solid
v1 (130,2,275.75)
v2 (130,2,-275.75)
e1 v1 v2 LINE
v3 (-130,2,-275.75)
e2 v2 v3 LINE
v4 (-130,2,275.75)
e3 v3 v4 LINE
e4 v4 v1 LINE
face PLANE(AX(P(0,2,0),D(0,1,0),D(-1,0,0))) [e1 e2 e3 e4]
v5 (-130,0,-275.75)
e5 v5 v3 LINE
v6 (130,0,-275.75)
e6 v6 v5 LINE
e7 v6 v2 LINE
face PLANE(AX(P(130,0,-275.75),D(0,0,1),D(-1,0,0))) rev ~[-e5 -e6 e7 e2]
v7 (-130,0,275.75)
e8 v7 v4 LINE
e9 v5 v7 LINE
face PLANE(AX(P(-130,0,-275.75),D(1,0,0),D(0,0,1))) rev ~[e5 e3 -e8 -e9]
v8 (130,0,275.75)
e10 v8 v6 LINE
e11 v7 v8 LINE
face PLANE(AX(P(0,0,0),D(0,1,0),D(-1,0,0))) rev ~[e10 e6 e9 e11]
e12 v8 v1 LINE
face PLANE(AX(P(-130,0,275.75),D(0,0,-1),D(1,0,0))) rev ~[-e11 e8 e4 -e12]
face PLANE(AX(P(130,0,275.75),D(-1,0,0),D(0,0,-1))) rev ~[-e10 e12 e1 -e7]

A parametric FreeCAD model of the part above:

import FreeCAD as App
import Part
import Sketcher
from FreeCAD import Vector


def add_polygon(sketch, points):
    """Adds a closed chain of lines whose ends are joined by coincident constraints."""
    first, n = sketch.GeometryCount, len(points)
    for a, b in zip(points, points[1:] + points[:1]):
        sketch.addGeometry(Part.LineSegment(App.Vector(*a, 0), App.Vector(*b, 0)), False)
    for i in range(n):
        sketch.addConstraint(Sketcher.Constraint("Coincident", first + i, 2, first + (i + 1) % n, 1))

doc = App.newDocument("Part")
body = doc.addObject("PartDesign::Body", "Body")

sketch1 = body.newObject("Sketcher::SketchObject", "Sketch")
sketch1.AttachmentSupport = (doc.getObject("XZ_Plane"), [""])
sketch1.MapMode = "FlatFace"
add_polygon(sketch1, [(-130, -276), (-130, 276), (130, 276), (130, -276)])
sketch1.addConstraint(Sketcher.Constraint("Vertical", 0))
sketch1.addConstraint(Sketcher.Constraint("Horizontal", 1))
sketch1.addConstraint(Sketcher.Constraint("Vertical", 2))
sketch1.addConstraint(Sketcher.Constraint("Horizontal", 3))
sketch1.addConstraint(Sketcher.Constraint("Symmetric", 0, 2, 2, 2, -1, 1))
sketch1.addConstraint(Sketcher.Constraint("DistanceX", 1, 1, 1, 2, 260.0))
sketch1.addConstraint(Sketcher.Constraint("DistanceY", 0, 1, 0, 2, 551.5))
pad1 = body.newObject("PartDesign::Pad", "Pad")
pad1.Profile = sketch1
pad1.Length = 2
pad1.Reversed = True

doc.recompute()
